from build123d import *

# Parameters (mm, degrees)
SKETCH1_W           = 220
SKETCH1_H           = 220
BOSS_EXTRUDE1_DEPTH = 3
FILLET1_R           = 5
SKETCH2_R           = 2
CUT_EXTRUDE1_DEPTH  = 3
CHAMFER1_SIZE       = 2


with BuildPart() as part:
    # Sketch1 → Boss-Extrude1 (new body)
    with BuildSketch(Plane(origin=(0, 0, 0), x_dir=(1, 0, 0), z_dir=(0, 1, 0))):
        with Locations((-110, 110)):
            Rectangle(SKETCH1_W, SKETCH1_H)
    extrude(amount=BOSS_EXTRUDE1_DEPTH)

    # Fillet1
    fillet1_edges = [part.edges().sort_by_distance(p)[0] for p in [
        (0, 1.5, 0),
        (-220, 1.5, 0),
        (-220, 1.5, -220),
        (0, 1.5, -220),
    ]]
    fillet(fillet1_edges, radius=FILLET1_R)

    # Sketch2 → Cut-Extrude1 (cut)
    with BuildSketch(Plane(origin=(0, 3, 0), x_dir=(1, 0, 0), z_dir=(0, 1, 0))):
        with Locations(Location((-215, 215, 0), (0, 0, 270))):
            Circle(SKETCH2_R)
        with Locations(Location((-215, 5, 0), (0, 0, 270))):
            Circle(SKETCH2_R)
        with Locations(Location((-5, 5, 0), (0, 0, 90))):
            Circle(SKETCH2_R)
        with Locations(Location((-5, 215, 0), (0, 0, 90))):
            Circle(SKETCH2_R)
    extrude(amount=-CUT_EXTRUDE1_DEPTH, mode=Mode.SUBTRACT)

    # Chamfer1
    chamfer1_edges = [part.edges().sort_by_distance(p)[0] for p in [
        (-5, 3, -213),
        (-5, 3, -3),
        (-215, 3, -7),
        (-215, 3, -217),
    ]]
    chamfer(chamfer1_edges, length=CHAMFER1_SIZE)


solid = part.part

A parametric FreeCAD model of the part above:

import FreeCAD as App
import Part
import Sketcher

V = App.Vector
Q = App.Units.Quantity


def edges_at(feature, points):
    """Names of the edges that pass closest to the given points."""
    edges = feature.Shape.Edges
    near = lambda p: min(range(len(edges)), key=lambda i: edges[i].distToShape(Part.Vertex(*p))[0])
    return sorted({f"Edge{near(p) + 1}" for p in points})

doc = App.newDocument("Part")
body = doc.addObject("PartDesign::Body", "Body")

# Sketch on XZ plane
sketch1 = body.newObject("Sketcher::SketchObject", "Sketch")
sketch1.AttachmentSupport = (doc.getObject("XZ_Plane"), [""])
sketch1.MapMode = "FlatFace"
sketch1.addGeometry([
    Part.LineSegment(V(-220, -220, 0), V(-220, 0, 0)),
    Part.LineSegment(V(-220, 0, 0), V(0, 0, 0)),
    Part.LineSegment(V(0, 0, 0), V(0, -220, 0)),
    Part.LineSegment(V(0, -220, 0), V(-220, -220, 0)),
], False)
sketch1.addConstraint([
    Sketcher.Constraint("Coincident", 0, 2, 1, 1),
    Sketcher.Constraint("Coincident", 1, 2, 2, 1),
    Sketcher.Constraint("Coincident", 2, 2, 3, 1),
    Sketcher.Constraint("Coincident", 3, 2, 0, 1),
    Sketcher.Constraint("Vertical", 0),
    Sketcher.Constraint("Horizontal", 1),
    Sketcher.Constraint("Vertical", 2),
    Sketcher.Constraint("Horizontal", 3),
    Sketcher.Constraint("Coincident", 1, 2, -1, 1),
    Sketcher.Constraint("Equal", 3, 0),
    Sketcher.Constraint("DistanceX", 1, 1, 1, 2, Q("220 mm")),
])
pad1 = body.newObject("PartDesign::Pad", "Pad")
pad1.Profile = sketch1
pad1.Length = 3
pad1.Reversed = True
doc.recompute()

fillet = body.newObject("PartDesign::Fillet", "Fillet")
fillet.Base = (pad1, edges_at(pad1, [
    (0, 1.5, 0),
    (-220, 1.5, 0),
    (-220, 1.5, -220),
    (0, 1.5, -220),
]))
fillet.Radius = 5

# Sketch on XZ plane
sketch2 = body.newObject("Sketcher::SketchObject", "Sketch001")
sketch2.AttachmentSupport = (doc.getObject("XZ_Plane"), [""])
sketch2.MapMode = "FlatFace"
sketch2.AttachmentOffset = App.Placement(V(0, 0, -3), App.Rotation())
sketch2.addGeometry([
    Part.Circle(V(-215, -215, 0), V(0, 0, 1), 2),
    Part.Circle(V(-215, -5, 0), V(0, 0, 1), 2),
    Part.Circle(V(-5, -5, 0), V(0, 0, 1), 2),
    Part.Circle(V(-5, -215, 0), V(0, 0, 1), 2),
], False)
sketch2.addConstraint([
    Sketcher.Constraint("Equal", 0, 1),
    Sketcher.Constraint("Equal", 1, 2),
    Sketcher.Constraint("Equal", 2, 3),
    Sketcher.Constraint("Horizontal", 1, 3, 2, 3),
    Sketcher.Constraint("Horizontal", 0, 3, 3, 3),
    Sketcher.Constraint("Vertical", 0, 3, 1, 3),
    Sketcher.Constraint("Vertical", 2, 3, 3, 3),
    Sketcher.Constraint("Diameter", 0, Q("4 mm")),
    Sketcher.Constraint("DistanceX", 0, 3, -1, 1, Q("215 mm")),
    Sketcher.Constraint("DistanceY", 0, 3, -1, 1, Q("215 mm")),
    Sketcher.Constraint("DistanceY", 1, 3, -1, 1, Q("5 mm")),
    Sketcher.Constraint("DistanceX", 2, 3, -1, 1, Q("5 mm")),
])
pocket1 = body.newObject("PartDesign::Pocket", "Pocket")
pocket1.Profile = sketch2
pocket1.Length = 3
pocket1.Reversed = True
doc.recompute()

chamfer = body.newObject("PartDesign::Chamfer", "Chamfer")
chamfer.Base = (pocket1, edges_at(pocket1, [
    (-5, 3, -213),
    (-5, 3, -3),
    (-215, 3, -7),
    (-215, 3, -217),
]))
chamfer.Size = 2

doc.recompute()
